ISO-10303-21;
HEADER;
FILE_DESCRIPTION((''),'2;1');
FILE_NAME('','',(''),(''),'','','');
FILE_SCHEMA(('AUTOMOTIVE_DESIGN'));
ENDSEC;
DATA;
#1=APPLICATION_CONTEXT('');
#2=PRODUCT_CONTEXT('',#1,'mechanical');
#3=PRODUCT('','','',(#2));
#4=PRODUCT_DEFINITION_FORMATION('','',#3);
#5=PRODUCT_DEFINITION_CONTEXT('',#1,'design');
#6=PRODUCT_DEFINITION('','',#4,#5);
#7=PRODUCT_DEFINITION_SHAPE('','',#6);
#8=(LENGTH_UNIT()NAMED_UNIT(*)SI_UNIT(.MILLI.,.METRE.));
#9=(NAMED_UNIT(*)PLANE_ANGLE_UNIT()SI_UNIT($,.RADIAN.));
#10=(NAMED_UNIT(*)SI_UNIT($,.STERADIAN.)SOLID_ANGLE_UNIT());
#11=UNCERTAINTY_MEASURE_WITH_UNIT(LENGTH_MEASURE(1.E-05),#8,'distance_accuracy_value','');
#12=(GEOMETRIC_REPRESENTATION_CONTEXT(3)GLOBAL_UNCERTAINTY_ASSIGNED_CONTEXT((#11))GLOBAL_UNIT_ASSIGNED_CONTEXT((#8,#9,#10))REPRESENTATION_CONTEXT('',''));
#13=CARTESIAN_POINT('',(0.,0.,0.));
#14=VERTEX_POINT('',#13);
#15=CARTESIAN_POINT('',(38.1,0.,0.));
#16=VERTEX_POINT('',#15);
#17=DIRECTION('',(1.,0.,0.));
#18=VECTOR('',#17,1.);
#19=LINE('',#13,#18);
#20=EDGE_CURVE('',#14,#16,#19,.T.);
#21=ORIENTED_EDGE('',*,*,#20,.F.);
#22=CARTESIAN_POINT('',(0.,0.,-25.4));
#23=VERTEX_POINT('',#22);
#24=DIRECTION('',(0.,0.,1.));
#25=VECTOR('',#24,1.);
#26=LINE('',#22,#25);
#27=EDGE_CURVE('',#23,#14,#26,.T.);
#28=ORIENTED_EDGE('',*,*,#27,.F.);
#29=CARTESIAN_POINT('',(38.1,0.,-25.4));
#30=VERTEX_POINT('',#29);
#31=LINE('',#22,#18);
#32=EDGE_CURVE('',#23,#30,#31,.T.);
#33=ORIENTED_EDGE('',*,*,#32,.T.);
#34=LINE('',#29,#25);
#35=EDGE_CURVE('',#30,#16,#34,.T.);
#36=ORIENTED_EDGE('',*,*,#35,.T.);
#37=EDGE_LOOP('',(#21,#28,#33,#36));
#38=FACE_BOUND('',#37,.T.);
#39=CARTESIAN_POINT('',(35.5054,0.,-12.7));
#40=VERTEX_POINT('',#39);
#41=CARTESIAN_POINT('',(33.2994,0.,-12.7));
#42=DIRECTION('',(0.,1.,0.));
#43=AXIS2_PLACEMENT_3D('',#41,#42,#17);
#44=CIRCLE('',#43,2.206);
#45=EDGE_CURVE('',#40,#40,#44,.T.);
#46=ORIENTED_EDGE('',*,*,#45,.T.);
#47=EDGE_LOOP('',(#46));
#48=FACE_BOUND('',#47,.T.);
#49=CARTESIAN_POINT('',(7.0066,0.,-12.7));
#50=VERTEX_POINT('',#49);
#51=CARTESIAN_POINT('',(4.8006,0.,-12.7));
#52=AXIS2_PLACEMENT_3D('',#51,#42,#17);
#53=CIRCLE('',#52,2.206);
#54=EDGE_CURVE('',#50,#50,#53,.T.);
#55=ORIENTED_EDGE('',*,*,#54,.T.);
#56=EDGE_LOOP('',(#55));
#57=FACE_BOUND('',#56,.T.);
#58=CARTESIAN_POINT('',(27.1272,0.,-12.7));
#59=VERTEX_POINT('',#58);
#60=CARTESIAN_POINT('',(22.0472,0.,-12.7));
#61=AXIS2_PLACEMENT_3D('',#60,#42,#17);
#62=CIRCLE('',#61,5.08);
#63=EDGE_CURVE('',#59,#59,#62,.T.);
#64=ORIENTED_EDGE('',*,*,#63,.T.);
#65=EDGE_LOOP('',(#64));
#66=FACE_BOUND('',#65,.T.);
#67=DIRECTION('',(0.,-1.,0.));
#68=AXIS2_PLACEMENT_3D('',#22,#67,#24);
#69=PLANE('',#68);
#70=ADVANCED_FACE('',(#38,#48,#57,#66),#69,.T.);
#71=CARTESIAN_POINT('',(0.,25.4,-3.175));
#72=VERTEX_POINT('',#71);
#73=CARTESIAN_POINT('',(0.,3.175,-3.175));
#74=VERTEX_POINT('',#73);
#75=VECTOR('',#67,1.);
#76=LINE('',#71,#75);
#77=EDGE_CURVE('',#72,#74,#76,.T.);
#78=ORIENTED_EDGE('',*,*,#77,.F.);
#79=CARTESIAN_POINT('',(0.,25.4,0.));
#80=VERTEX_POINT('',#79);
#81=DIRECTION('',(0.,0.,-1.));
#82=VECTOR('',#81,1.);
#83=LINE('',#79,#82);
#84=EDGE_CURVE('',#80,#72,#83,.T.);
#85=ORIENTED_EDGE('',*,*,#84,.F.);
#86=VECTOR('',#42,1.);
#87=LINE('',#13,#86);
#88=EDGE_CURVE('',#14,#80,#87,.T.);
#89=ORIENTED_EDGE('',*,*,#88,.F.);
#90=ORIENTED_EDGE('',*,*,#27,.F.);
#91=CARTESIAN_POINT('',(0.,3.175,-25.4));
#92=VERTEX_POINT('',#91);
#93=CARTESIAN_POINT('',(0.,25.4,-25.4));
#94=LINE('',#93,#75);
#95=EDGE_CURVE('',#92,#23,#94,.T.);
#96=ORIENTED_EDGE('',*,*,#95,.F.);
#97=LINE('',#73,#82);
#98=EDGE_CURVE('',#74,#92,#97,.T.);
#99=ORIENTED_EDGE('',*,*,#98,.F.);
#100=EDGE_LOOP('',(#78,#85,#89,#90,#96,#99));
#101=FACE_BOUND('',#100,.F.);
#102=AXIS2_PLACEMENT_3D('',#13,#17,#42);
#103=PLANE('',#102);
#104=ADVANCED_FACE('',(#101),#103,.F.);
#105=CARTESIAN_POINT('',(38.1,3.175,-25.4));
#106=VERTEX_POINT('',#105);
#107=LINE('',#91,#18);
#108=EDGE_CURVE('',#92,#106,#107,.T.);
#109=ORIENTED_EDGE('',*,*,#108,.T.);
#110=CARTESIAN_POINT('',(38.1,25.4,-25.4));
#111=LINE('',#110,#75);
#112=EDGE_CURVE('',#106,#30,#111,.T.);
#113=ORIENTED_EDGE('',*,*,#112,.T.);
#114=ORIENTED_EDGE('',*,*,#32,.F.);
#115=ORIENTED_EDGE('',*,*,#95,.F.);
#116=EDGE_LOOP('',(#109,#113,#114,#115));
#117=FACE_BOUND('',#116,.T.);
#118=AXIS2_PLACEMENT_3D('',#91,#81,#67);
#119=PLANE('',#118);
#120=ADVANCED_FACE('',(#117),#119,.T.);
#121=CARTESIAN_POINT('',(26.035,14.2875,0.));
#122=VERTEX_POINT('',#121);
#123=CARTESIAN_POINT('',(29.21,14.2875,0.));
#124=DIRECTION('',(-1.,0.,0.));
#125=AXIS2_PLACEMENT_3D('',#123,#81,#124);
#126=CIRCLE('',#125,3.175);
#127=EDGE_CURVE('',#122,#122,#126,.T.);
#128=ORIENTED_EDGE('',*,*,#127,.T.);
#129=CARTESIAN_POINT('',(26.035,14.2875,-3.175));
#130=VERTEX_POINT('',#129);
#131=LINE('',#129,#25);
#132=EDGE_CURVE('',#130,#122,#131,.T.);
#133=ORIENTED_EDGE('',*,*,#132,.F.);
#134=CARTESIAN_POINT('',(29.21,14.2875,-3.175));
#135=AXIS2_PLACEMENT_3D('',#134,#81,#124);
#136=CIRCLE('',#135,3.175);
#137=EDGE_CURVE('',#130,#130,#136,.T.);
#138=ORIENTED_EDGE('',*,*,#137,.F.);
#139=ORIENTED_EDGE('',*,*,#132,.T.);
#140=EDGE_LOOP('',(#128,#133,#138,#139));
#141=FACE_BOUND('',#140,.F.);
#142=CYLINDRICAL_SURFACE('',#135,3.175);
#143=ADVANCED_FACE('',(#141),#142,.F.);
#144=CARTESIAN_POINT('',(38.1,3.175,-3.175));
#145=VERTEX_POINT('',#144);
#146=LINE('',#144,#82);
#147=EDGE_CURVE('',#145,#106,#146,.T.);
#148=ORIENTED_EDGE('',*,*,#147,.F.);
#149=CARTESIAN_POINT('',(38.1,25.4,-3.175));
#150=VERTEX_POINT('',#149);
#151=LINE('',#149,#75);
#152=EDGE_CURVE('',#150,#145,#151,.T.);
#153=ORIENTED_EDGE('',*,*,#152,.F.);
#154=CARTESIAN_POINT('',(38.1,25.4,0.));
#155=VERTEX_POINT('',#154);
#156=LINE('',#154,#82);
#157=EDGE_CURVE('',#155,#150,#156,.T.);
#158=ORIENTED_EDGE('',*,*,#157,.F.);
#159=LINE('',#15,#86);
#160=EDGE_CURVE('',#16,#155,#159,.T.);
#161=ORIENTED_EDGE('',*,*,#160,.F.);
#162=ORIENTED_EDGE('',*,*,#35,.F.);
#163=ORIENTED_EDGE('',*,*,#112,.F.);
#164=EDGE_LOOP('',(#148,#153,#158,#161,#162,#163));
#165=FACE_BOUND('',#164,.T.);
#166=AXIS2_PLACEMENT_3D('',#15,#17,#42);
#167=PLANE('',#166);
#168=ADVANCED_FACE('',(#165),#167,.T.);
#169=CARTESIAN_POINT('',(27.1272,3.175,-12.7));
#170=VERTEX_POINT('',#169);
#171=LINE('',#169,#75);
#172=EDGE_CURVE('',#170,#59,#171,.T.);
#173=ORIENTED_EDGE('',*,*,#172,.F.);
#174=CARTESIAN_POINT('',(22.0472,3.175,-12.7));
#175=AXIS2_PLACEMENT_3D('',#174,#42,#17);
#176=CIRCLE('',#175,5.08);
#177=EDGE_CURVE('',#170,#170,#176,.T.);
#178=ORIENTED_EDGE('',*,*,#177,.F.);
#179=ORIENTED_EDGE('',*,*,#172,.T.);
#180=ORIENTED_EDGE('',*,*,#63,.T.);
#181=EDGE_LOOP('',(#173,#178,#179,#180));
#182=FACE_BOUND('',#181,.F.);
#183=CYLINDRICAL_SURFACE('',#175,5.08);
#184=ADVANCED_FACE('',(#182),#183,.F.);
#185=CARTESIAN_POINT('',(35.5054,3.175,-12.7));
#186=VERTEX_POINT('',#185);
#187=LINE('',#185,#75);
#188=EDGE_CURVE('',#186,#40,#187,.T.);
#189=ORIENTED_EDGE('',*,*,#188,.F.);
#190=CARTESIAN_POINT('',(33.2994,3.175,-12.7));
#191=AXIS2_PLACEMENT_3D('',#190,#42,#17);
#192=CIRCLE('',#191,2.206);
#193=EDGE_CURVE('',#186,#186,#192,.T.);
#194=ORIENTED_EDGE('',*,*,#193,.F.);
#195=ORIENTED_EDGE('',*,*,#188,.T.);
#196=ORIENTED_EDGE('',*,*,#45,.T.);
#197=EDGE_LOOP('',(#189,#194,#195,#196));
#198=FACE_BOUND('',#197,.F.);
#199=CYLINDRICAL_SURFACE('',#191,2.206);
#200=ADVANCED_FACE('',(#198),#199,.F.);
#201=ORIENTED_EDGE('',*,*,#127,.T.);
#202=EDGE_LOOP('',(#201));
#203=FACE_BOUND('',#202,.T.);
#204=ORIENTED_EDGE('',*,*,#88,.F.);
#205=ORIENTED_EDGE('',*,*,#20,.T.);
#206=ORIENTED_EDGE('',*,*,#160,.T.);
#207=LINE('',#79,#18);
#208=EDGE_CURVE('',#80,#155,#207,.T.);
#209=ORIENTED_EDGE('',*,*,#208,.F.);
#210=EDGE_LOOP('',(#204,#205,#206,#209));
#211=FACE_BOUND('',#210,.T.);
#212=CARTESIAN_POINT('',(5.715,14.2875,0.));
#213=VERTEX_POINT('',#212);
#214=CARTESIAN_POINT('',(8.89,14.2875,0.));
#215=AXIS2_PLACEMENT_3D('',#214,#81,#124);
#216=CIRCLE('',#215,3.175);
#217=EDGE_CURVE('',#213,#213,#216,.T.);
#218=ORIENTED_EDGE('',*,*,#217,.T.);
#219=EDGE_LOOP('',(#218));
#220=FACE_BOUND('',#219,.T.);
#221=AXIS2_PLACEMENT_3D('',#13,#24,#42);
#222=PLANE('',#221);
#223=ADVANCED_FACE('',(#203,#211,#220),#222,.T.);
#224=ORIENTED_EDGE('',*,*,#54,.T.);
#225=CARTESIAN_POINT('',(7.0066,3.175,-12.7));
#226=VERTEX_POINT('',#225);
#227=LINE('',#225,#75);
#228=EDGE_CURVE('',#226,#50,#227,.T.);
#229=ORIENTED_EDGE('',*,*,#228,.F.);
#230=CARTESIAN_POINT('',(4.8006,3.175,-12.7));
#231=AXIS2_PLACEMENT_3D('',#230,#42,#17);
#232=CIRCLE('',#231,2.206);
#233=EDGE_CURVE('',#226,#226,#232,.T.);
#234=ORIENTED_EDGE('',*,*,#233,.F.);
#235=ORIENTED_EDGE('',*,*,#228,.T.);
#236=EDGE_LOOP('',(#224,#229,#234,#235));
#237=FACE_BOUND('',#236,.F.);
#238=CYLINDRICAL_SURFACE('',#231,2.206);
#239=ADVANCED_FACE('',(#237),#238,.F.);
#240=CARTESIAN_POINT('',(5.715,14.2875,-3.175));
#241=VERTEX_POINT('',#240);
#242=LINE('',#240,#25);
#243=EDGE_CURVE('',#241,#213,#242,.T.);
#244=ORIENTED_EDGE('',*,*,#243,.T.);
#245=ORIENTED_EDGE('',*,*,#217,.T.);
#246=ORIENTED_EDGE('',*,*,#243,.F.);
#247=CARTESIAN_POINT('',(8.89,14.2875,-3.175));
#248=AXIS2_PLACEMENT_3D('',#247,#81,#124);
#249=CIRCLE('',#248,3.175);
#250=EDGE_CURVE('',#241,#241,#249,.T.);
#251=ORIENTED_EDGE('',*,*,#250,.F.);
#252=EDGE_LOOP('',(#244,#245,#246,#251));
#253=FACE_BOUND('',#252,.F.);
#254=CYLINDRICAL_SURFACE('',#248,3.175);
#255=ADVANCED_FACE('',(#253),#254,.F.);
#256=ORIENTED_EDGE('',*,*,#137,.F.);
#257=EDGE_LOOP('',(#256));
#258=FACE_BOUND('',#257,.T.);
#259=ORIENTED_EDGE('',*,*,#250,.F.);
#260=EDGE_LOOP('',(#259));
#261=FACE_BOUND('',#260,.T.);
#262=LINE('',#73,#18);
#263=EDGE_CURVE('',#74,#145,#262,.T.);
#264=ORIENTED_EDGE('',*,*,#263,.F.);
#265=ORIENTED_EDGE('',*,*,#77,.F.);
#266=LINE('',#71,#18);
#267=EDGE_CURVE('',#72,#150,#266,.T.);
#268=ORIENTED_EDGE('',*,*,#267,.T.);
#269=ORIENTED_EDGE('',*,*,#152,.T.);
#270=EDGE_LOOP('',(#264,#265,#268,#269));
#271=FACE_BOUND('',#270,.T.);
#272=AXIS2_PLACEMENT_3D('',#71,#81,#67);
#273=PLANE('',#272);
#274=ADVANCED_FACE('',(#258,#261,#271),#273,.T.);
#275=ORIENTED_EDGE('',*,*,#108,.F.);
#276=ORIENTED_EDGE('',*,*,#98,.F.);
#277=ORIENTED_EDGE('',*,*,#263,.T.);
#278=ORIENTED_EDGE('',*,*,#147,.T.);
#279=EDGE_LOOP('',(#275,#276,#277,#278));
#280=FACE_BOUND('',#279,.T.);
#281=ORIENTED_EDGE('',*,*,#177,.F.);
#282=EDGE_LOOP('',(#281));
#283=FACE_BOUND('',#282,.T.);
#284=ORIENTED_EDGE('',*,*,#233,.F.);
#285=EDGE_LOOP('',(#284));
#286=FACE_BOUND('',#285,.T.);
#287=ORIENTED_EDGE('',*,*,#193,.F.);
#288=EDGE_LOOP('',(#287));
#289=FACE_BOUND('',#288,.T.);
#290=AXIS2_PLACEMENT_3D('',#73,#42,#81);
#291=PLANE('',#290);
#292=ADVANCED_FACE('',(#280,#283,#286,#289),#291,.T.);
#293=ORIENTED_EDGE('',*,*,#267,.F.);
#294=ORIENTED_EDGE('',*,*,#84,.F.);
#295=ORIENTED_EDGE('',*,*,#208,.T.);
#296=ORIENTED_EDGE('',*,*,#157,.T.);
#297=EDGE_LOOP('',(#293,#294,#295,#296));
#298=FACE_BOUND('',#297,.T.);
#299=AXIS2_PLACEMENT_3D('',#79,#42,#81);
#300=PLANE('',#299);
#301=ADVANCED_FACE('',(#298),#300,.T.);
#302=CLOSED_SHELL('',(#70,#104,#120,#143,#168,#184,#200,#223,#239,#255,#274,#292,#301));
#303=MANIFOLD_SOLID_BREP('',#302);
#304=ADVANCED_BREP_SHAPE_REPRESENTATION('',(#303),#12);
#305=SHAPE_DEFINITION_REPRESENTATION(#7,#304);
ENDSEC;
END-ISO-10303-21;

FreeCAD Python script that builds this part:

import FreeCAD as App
import Part
import Sketcher
from FreeCAD import Vector
Q = App.Units.Quantity


def add_polygon(sketch, points):
    """Adds a closed chain of lines whose ends are joined by coincident constraints."""
    first, n = sketch.GeometryCount, len(points)
    for a, b in zip(points, points[1:] + points[:1]):
        sketch.addGeometry(Part.LineSegment(App.Vector(*a, 0), App.Vector(*b, 0)), False)
    for i in range(n):
        sketch.addConstraint(Sketcher.Constraint("Coincident", first + i, 2, first + (i + 1) % n, 1))

doc = App.newDocument("Part")
body = doc.addObject("PartDesign::Body", "Body")

# Sketch on YZ plane
sketch1 = doc.addObject("Sketcher::SketchObject", "Sketch")
body.addObject(sketch1)
sketch1.AttachmentSupport = (doc.YZ_Plane, [""])
sketch1.MapMode = "FlatFace"
add_polygon(sketch1, [(25.4, 0), (0, 0), (0, -25.4), (3.175, -25.4), (3.175, -3.175), (25.4, -3.175)])  # lines 0-5
sketch1.addConstraint([
    Sketcher.Constraint("Horizontal", 0),
    Sketcher.Constraint("Vertical", 1),
    Sketcher.Constraint("Horizontal", 2),
    Sketcher.Constraint("Vertical", 3),
    Sketcher.Constraint("Horizontal", 4),
    Sketcher.Constraint("Vertical", 5),
    Sketcher.Constraint("Coincident", 0, 2, -1, 1),
    Sketcher.Constraint("Equal", 0, 1),
    Sketcher.Constraint("Equal", 4, 3),
    Sketcher.Constraint("DistanceX", 0, 2, 0, 1, Q("1 in")),
    Sketcher.Constraint("DistanceX", 2, 1, 2, 2, Q("0.125 in")),
])
pad1 = doc.addObject("PartDesign::Pad", "Pad")
body.addObject(pad1)
pad1.Profile = sketch1
pad1.Length = Q("1.5 in")

# Sketch on XZ plane
sketch2 = doc.addObject("Sketcher::SketchObject", "Sketch001")
body.addObject(sketch2)
sketch2.AttachmentSupport = (doc.XZ_Plane, [""])
sketch2.MapMode = "FlatFace"
sketch2.AttachmentOffset = App.Placement(Vector(0, 0, -0.125 * 25.4), App.Rotation())
sketch2.addGeometry([
    Part.Circle(Vector(4.8006, -12.7, 0), Vector(0, 0, 1), 2.206),
    Part.Circle(Vector(33.2994, -12.7, 0), Vector(0, 0, 1), 2.206),
    Part.Circle(Vector(22.0472, -12.7, 0), Vector(0, 0, 1), 5.08),
], False)
sketch2.addConstraint([
    Sketcher.Constraint("Equal", 0, 1),
    Sketcher.Constraint("Horizontal", 0, 3, 1, 3),
    Sketcher.Constraint("Horizontal", 1, 3, 2, 3),
    Sketcher.Constraint("Diameter", 2, Q("0.4 in")),
    Sketcher.Constraint("Diameter", 0, Q("0.1737 in")),
    Sketcher.Constraint("DistanceX", 2, 3, 1, 3, Q("0.443 in")),
    Sketcher.Constraint("DistanceY", 0, 3, -1, 1, Q("0.5 in")),
    Sketcher.Constraint("DistanceX", -1, 1, 0, 3, Q("0.189 in")),
    Sketcher.Constraint("DistanceX", -1, 1, 1, 3, Q("1.311 in")),
])
pocket1 = doc.addObject("PartDesign::Pocket", "Pocket")
body.addObject(pocket1)
pocket1.Profile = sketch2
pocket1.Length = Q("1.5 in")
pocket1.Reversed = True

# Sketch on XY plane
sketch3 = doc.addObject("Sketcher::SketchObject", "Sketch002")
body.addObject(sketch3)
sketch3.AttachmentSupport = (doc.XY_Plane, [""])
sketch3.MapMode = "FlatFace"
sketch3.AttachmentOffset = App.Placement(Vector(0, 0, -0.125 * 25.4), App.Rotation())
sketch3.addGeometry([
    Part.Circle(Vector(29.21, 14.2875, 0), Vector(0, 0, 1), 3.175),
    Part.Circle(Vector(8.89, 14.2875, 0), Vector(0, 0, 1), 3.175),
], False)
sketch3.addConstraint([
    Sketcher.Constraint("Equal", 0, 1),
    Sketcher.Constraint("Horizontal", 0, 3, 1, 3),
    Sketcher.Constraint("Diameter", 0, Q("0.25 in")),
    Sketcher.Constraint("DistanceX", 1, 3, 0, 3, Q("0.8 in")),
    Sketcher.Constraint("DistanceX", -1, 1, 0, 3, Q("1.15 in")),
    Sketcher.Constraint("DistanceY", -1, 1, 0, 3, Q("0.5625 in")),
])
pocket2 = doc.addObject("PartDesign::Pocket", "Pocket001")
body.addObject(pocket2)
pocket2.Profile = sketch3
pocket2.Length = Q("1.5 in")
pocket2.Reversed = True

doc.recompute()
